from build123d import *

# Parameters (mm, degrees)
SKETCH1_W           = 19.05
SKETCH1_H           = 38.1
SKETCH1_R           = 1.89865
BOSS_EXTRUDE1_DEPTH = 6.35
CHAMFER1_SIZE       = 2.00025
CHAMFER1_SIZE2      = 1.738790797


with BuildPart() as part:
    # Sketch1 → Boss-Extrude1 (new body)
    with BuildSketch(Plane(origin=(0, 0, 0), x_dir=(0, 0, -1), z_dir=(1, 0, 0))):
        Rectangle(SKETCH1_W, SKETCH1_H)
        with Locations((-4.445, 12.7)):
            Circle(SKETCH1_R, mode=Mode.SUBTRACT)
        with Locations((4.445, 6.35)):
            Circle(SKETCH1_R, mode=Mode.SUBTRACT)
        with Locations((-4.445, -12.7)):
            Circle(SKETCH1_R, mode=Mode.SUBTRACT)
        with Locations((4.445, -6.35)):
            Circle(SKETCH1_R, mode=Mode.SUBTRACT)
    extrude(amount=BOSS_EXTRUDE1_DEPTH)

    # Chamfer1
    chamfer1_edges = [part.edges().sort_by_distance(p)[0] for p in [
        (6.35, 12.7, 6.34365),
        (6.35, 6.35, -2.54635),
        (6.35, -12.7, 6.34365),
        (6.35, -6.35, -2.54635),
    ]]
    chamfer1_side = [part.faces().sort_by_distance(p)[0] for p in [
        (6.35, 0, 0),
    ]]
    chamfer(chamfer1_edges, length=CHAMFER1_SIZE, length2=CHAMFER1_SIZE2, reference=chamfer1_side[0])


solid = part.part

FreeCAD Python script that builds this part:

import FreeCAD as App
import Part
import Sketcher
from FreeCAD import Vector
Q = App.Units.Quantity


def edges_at(feature, points):
    """Names of the edges that pass closest to the given points."""
    edges = feature.Shape.Edges
    near = lambda p: min(range(len(edges)), key=lambda i: edges[i].distToShape(Part.Vertex(*p))[0])
    return sorted({f"Edge{near(p) + 1}" for p in points})


def add_polygon(sketch, points):
    """Adds a closed chain of lines whose ends are joined by coincident constraints."""
    first, n = sketch.GeometryCount, len(points)
    for a, b in zip(points, points[1:] + points[:1]):
        sketch.addGeometry(Part.LineSegment(App.Vector(*a, 0), App.Vector(*b, 0)), False)
    for i in range(n):
        sketch.addConstraint(Sketcher.Constraint("Coincident", first + i, 2, first + (i + 1) % n, 1))

doc = App.newDocument("Part")
body = doc.addObject("PartDesign::Body", "Body")

# Sketch on YZ plane
sketch1 = body.newObject("Sketcher::SketchObject", "Sketch")
sketch1.AttachmentSupport = (doc.getObject("YZ_Plane"), [""])
sketch1.MapMode = "FlatFace"
add_polygon(sketch1, [(19.1, 9.5), (-19.1, 9.5), (-19.1, -9.5), (19.1, -9.5)])  # lines 0-3
sketch1.addGeometry(Part.Circle(Vector(-12.7, 4.4, 0), Vector(0, 0, 1), 1.9), False)  # 4
sketch1.addGeometry(Part.Circle(Vector(-6.3, -4.4, 0), Vector(0, 0, 1), 1.9), False)  # 5
sketch1.addGeometry(Part.Circle(Vector(12.7, 4.4, 0), Vector(0, 0, 1), 1.9), False)  # 6
sketch1.addGeometry(Part.Circle(Vector(6.3, -4.4, 0), Vector(0, 0, 1), 1.9), False)  # 7
sketch1.addConstraint(Sketcher.Constraint("Horizontal", 0))
sketch1.addConstraint(Sketcher.Constraint("Vertical", 1))
sketch1.addConstraint(Sketcher.Constraint("Horizontal", 2))
sketch1.addConstraint(Sketcher.Constraint("Vertical", 3))
sketch1.addConstraint(Sketcher.Constraint("Equal", 4, 5))
sketch1.addConstraint(Sketcher.Constraint("Equal", 5, 6))
sketch1.addConstraint(Sketcher.Constraint("Equal", 6, 7))
sketch1.addConstraint(Sketcher.Constraint("Symmetric", 0, 2, 2, 2, -1, 1))
sketch1.addConstraint(Sketcher.Constraint("Symmetric", 4, 3, 6, 3, -2))
sketch1.addConstraint(Sketcher.Constraint("Symmetric", 5, 3, 7, 3, -2))
sketch1.addConstraint(Sketcher.Constraint("DistanceX", 0, 2, 0, 1, Q("1.5 in")))
sketch1.addConstraint(Sketcher.Constraint("DistanceX", 4, 3, 6, 3, Q("1 in")))
sketch1.addConstraint(Sketcher.Constraint("DistanceX", 0, 2, 7, 3, Q("1 in")))
sketch1.addConstraint(Sketcher.Constraint("Diameter", 4, Q("0.1495 in")))
sketch1.addConstraint(Sketcher.Constraint("DistanceY", 1, 2, 1, 1, Q("0.75 in")))
sketch1.addConstraint(Sketcher.Constraint("DistanceY", 4, 3, 0, 2, Q("0.2 in")))
sketch1.addConstraint(Sketcher.Constraint("DistanceY", 1, 2, 5, 3, Q("0.2 in")))
pad1 = body.newObject("PartDesign::Pad", "Pad")
pad1.Profile = sketch1
pad1.Length = Q("0.25 in")
doc.recompute()

chamfer = body.newObject("PartDesign::Chamfer", "Chamfer")
chamfer.Base = (pad1, edges_at(pad1, [
    (6.35, 12.7, 6.344),
    (6.35, 6.35, -2.546),
    (6.35, -12.7, 6.344),
    (6.35, -6.35, -2.546),
]))
chamfer.ChamferType = "Two distances"
chamfer.Size = 2.00025
chamfer.Size2 = 1.738791
chamfer.FlipDirection = True

doc.recompute()
